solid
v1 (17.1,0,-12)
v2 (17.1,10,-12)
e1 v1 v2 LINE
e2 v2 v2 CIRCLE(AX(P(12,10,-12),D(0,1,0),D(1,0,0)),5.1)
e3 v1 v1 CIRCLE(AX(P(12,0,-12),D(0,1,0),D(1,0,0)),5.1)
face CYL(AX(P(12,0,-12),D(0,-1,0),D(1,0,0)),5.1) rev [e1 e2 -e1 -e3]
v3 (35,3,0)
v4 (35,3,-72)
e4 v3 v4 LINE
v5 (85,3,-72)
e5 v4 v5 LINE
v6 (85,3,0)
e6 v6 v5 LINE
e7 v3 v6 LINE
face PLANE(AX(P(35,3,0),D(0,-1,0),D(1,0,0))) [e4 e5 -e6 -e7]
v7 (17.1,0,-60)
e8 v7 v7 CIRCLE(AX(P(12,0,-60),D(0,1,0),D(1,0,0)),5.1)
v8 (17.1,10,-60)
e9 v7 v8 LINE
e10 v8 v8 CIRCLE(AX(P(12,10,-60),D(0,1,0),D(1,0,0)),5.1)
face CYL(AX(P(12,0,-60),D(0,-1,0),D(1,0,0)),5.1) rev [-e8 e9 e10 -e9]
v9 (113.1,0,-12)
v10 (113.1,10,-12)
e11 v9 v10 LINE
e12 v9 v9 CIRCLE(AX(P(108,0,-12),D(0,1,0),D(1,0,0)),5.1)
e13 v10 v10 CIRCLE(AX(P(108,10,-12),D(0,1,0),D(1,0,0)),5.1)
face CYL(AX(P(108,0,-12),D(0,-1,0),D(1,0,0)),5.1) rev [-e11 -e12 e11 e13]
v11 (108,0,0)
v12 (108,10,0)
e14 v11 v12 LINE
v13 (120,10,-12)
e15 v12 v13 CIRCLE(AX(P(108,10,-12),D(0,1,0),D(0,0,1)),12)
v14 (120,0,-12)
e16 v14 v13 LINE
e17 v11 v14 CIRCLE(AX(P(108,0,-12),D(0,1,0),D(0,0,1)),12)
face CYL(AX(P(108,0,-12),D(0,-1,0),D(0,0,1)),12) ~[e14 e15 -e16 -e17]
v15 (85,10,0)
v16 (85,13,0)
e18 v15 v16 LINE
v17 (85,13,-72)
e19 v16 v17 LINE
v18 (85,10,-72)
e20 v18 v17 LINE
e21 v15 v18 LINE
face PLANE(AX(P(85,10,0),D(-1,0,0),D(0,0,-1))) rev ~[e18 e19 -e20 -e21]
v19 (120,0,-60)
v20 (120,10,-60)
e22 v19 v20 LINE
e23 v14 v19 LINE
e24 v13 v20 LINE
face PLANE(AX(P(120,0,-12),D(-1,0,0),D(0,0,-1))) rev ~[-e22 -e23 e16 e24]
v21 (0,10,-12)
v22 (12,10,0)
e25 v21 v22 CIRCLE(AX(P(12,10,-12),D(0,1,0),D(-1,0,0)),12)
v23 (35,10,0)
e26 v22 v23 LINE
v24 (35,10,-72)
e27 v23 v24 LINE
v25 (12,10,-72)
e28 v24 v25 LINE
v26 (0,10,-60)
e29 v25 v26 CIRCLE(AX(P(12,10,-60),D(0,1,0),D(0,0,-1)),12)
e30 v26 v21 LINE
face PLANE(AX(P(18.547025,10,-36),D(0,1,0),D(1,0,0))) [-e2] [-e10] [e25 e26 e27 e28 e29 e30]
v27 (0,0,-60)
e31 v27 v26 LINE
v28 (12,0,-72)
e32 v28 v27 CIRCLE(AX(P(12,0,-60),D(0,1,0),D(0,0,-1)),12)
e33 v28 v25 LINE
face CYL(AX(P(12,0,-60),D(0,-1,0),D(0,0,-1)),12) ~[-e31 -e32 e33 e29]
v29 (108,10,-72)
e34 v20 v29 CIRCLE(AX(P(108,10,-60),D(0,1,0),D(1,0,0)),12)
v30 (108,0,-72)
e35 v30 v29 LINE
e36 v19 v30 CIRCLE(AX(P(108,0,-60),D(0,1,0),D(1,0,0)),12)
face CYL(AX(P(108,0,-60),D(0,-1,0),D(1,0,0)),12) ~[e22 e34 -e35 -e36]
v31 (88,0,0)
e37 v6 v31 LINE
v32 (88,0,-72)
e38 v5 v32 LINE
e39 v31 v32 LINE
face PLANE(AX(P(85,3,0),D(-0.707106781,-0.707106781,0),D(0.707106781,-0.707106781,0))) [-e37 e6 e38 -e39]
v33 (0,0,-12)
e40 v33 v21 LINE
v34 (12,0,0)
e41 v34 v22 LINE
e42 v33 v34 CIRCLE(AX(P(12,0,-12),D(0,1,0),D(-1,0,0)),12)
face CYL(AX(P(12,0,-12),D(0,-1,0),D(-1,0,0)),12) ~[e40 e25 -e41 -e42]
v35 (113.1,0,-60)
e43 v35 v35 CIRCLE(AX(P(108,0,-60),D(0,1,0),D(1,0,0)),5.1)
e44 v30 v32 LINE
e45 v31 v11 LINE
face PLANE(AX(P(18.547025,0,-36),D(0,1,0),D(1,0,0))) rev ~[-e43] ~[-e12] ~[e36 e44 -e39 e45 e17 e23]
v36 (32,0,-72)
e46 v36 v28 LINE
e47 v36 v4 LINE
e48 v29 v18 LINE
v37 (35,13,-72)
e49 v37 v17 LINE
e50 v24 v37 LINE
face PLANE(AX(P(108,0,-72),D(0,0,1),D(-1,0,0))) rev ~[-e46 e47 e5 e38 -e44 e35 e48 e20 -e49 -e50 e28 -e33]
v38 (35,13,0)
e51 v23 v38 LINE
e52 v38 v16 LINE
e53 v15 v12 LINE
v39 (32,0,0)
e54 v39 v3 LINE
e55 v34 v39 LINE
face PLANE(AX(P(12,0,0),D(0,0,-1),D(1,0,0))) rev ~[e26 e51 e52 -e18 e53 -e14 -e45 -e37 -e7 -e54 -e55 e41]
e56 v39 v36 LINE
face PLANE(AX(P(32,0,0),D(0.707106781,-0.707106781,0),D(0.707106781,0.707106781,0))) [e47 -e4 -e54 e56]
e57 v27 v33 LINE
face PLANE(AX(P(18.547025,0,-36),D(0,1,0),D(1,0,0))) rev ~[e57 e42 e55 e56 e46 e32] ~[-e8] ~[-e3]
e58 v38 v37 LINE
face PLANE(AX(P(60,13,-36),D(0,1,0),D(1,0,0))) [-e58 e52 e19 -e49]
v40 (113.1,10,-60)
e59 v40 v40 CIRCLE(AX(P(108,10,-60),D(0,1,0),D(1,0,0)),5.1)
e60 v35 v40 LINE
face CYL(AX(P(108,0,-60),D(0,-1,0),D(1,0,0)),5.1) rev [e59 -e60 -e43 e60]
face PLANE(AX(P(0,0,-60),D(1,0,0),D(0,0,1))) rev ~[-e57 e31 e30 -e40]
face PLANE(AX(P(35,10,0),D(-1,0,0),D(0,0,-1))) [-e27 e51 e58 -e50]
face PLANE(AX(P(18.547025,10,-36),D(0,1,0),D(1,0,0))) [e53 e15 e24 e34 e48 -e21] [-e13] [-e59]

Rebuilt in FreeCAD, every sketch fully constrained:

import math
import FreeCAD as App
import Part
import Sketcher
from FreeCAD import Vector


def add_polygon(sketch, points):
    """Adds a closed chain of lines whose ends are joined by coincident constraints."""
    first, n = sketch.GeometryCount, len(points)
    for a, b in zip(points, points[1:] + points[:1]):
        sketch.addGeometry(Part.LineSegment(App.Vector(*a, 0), App.Vector(*b, 0)), False)
    for i in range(n):
        sketch.addConstraint(Sketcher.Constraint("Coincident", first + i, 2, first + (i + 1) % n, 1))

doc = App.newDocument("Part")
body = doc.addObject("PartDesign::Body", "Body")

sketch1 = body.newObject("Sketcher::SketchObject", "Sketch")
sketch1.AttachmentSupport = (doc.getObject("XZ_Plane"), [""])
sketch1.MapMode = "FlatFace"
sketch1.addGeometry([
    Part.ArcOfCircle(Part.Circle(Vector(12, -12, 0), Vector(0, 0, 1), 12), math.radians(90), math.radians(180)),
    Part.LineSegment(Vector(12, 0, 0), Vector(108, 0, 0)),
    Part.ArcOfCircle(Part.Circle(Vector(108, -12, 0), Vector(0, 0, 1), 12), math.radians(0), math.radians(90)),
    Part.LineSegment(Vector(120, -12, 0), Vector(120, -60, 0)),
    Part.ArcOfCircle(Part.Circle(Vector(108, -60, 0), Vector(0, 0, 1), 12), math.radians(-90), math.radians(0)),
    Part.LineSegment(Vector(108, -72, 0), Vector(12, -72, 0)),
    Part.ArcOfCircle(Part.Circle(Vector(12, -60, 0), Vector(0, 0, 1), 12), math.radians(-180), math.radians(-90)),
    Part.LineSegment(Vector(0, -60, 0), Vector(0, -12, 0)),
    Part.Circle(Vector(12, -12, 0), Vector(0, 0, 1), 5),
    Part.Circle(Vector(108, -12, 0), Vector(0, 0, 1), 5),
    Part.Circle(Vector(12, -60, 0), Vector(0, 0, 1), 5),
    Part.Circle(Vector(108, -60, 0), Vector(0, 0, 1), 5),
], False)
sketch1.addConstraint([
    Sketcher.Constraint("Tangent", 0, 1, 1, 1),
    Sketcher.Constraint("Tangent", 1, 2, 2, 2),
    Sketcher.Constraint("Tangent", 2, 1, 3, 1),
    Sketcher.Constraint("Tangent", 3, 2, 4, 2),
    Sketcher.Constraint("Tangent", 4, 1, 5, 1),
    Sketcher.Constraint("Tangent", 5, 2, 6, 2),
    Sketcher.Constraint("Tangent", 6, 1, 7, 1),
    Sketcher.Constraint("Tangent", 7, 2, 0, 2),
    Sketcher.Constraint("Horizontal", 1),
    Sketcher.Constraint("Vertical", 3),
    Sketcher.Constraint("Horizontal", 5),
    Sketcher.Constraint("Vertical", 7),
    Sketcher.Constraint("Coincident", 8, 3, 0, 3),
    Sketcher.Constraint("Coincident", 9, 3, 2, 3),
    Sketcher.Constraint("Coincident", 10, 3, 6, 3),
    Sketcher.Constraint("Coincident", 11, 3, 4, 3),
    Sketcher.Constraint("Equal", 0, 2),
    Sketcher.Constraint("Equal", 2, 4),
    Sketcher.Constraint("Equal", 4, 6),
    Sketcher.Constraint("Equal", 8, 9),
    Sketcher.Constraint("Equal", 9, 10),
    Sketcher.Constraint("Equal", 10, 11),
    Sketcher.Constraint("PointOnObject", 0, 1, -1),
    Sketcher.Constraint("PointOnObject", 6, 1, -2),
    Sketcher.Constraint("Radius", 0, 12.0),
    Sketcher.Constraint("Diameter", 8, 10.2),
    Sketcher.Constraint("DistanceX", 1, 1, 1, 2, 96.0),
    Sketcher.Constraint("DistanceY", 3, 2, 3, 1, 48.0),
])
pad1 = body.newObject("PartDesign::Pad", "Pad")
pad1.Profile = sketch1
pad1.Length = 10
pad1.Reversed = True

sketch2 = body.newObject("Sketcher::SketchObject", "Sketch001")
sketch2.AttachmentSupport = (doc.getObject("XY_Plane"), [""])
sketch2.MapMode = "FlatFace"
add_polygon(sketch2, [(35, 3), (32, 0), (88, 0), (85, 3)])
sketch2.addConstraint([
    Sketcher.Constraint("Horizontal", 1),
    Sketcher.Constraint("Horizontal", 3),
    Sketcher.Constraint("PointOnObject", 0, 2, -1),
    Sketcher.Constraint("Perpendicular", 0, 2),
    Sketcher.Constraint("Equal", 0, 2),
    Sketcher.Constraint("DistanceX", 1, 1, 1, 2, 56.0),
    Sketcher.Constraint("DistanceX", 3, 2, 3, 1, 50.0),
    Sketcher.Constraint("DistanceX", -1, 1, 0, 2, 32.0),
])
pocket1 = body.newObject("PartDesign::Pocket", "Pocket")
pocket1.Profile = sketch2
pocket1.Length = 72

sketch3 = body.newObject("Sketcher::SketchObject", "Sketch002")
sketch3.AttachmentSupport = (doc.getObject("XZ_Plane"), [""])
sketch3.MapMode = "FlatFace"
sketch3.AttachmentOffset = App.Placement(Vector(0, 0, -10), App.Rotation())
add_polygon(sketch3, [(35, -72), (35, 0), (85, 0), (85, -72)])
sketch3.addConstraint([
    Sketcher.Constraint("Vertical", 0),
    Sketcher.Constraint("Horizontal", 1),
    Sketcher.Constraint("Vertical", 2),
    Sketcher.Constraint("Horizontal", 3),
    Sketcher.Constraint("PointOnObject", 0, 2, -1),
    Sketcher.Constraint("DistanceX", 1, 1, 1, 2, 50.0),
    Sketcher.Constraint("DistanceY", 0, 1, 0, 2, 72.0),
    Sketcher.Constraint("DistanceX", -1, 1, 0, 2, 35.0),
])
pad2 = body.newObject("PartDesign::Pad", "Pad001")
pad2.Profile = sketch3
pad2.Length = 3
pad2.Reversed = True

doc.recompute()
